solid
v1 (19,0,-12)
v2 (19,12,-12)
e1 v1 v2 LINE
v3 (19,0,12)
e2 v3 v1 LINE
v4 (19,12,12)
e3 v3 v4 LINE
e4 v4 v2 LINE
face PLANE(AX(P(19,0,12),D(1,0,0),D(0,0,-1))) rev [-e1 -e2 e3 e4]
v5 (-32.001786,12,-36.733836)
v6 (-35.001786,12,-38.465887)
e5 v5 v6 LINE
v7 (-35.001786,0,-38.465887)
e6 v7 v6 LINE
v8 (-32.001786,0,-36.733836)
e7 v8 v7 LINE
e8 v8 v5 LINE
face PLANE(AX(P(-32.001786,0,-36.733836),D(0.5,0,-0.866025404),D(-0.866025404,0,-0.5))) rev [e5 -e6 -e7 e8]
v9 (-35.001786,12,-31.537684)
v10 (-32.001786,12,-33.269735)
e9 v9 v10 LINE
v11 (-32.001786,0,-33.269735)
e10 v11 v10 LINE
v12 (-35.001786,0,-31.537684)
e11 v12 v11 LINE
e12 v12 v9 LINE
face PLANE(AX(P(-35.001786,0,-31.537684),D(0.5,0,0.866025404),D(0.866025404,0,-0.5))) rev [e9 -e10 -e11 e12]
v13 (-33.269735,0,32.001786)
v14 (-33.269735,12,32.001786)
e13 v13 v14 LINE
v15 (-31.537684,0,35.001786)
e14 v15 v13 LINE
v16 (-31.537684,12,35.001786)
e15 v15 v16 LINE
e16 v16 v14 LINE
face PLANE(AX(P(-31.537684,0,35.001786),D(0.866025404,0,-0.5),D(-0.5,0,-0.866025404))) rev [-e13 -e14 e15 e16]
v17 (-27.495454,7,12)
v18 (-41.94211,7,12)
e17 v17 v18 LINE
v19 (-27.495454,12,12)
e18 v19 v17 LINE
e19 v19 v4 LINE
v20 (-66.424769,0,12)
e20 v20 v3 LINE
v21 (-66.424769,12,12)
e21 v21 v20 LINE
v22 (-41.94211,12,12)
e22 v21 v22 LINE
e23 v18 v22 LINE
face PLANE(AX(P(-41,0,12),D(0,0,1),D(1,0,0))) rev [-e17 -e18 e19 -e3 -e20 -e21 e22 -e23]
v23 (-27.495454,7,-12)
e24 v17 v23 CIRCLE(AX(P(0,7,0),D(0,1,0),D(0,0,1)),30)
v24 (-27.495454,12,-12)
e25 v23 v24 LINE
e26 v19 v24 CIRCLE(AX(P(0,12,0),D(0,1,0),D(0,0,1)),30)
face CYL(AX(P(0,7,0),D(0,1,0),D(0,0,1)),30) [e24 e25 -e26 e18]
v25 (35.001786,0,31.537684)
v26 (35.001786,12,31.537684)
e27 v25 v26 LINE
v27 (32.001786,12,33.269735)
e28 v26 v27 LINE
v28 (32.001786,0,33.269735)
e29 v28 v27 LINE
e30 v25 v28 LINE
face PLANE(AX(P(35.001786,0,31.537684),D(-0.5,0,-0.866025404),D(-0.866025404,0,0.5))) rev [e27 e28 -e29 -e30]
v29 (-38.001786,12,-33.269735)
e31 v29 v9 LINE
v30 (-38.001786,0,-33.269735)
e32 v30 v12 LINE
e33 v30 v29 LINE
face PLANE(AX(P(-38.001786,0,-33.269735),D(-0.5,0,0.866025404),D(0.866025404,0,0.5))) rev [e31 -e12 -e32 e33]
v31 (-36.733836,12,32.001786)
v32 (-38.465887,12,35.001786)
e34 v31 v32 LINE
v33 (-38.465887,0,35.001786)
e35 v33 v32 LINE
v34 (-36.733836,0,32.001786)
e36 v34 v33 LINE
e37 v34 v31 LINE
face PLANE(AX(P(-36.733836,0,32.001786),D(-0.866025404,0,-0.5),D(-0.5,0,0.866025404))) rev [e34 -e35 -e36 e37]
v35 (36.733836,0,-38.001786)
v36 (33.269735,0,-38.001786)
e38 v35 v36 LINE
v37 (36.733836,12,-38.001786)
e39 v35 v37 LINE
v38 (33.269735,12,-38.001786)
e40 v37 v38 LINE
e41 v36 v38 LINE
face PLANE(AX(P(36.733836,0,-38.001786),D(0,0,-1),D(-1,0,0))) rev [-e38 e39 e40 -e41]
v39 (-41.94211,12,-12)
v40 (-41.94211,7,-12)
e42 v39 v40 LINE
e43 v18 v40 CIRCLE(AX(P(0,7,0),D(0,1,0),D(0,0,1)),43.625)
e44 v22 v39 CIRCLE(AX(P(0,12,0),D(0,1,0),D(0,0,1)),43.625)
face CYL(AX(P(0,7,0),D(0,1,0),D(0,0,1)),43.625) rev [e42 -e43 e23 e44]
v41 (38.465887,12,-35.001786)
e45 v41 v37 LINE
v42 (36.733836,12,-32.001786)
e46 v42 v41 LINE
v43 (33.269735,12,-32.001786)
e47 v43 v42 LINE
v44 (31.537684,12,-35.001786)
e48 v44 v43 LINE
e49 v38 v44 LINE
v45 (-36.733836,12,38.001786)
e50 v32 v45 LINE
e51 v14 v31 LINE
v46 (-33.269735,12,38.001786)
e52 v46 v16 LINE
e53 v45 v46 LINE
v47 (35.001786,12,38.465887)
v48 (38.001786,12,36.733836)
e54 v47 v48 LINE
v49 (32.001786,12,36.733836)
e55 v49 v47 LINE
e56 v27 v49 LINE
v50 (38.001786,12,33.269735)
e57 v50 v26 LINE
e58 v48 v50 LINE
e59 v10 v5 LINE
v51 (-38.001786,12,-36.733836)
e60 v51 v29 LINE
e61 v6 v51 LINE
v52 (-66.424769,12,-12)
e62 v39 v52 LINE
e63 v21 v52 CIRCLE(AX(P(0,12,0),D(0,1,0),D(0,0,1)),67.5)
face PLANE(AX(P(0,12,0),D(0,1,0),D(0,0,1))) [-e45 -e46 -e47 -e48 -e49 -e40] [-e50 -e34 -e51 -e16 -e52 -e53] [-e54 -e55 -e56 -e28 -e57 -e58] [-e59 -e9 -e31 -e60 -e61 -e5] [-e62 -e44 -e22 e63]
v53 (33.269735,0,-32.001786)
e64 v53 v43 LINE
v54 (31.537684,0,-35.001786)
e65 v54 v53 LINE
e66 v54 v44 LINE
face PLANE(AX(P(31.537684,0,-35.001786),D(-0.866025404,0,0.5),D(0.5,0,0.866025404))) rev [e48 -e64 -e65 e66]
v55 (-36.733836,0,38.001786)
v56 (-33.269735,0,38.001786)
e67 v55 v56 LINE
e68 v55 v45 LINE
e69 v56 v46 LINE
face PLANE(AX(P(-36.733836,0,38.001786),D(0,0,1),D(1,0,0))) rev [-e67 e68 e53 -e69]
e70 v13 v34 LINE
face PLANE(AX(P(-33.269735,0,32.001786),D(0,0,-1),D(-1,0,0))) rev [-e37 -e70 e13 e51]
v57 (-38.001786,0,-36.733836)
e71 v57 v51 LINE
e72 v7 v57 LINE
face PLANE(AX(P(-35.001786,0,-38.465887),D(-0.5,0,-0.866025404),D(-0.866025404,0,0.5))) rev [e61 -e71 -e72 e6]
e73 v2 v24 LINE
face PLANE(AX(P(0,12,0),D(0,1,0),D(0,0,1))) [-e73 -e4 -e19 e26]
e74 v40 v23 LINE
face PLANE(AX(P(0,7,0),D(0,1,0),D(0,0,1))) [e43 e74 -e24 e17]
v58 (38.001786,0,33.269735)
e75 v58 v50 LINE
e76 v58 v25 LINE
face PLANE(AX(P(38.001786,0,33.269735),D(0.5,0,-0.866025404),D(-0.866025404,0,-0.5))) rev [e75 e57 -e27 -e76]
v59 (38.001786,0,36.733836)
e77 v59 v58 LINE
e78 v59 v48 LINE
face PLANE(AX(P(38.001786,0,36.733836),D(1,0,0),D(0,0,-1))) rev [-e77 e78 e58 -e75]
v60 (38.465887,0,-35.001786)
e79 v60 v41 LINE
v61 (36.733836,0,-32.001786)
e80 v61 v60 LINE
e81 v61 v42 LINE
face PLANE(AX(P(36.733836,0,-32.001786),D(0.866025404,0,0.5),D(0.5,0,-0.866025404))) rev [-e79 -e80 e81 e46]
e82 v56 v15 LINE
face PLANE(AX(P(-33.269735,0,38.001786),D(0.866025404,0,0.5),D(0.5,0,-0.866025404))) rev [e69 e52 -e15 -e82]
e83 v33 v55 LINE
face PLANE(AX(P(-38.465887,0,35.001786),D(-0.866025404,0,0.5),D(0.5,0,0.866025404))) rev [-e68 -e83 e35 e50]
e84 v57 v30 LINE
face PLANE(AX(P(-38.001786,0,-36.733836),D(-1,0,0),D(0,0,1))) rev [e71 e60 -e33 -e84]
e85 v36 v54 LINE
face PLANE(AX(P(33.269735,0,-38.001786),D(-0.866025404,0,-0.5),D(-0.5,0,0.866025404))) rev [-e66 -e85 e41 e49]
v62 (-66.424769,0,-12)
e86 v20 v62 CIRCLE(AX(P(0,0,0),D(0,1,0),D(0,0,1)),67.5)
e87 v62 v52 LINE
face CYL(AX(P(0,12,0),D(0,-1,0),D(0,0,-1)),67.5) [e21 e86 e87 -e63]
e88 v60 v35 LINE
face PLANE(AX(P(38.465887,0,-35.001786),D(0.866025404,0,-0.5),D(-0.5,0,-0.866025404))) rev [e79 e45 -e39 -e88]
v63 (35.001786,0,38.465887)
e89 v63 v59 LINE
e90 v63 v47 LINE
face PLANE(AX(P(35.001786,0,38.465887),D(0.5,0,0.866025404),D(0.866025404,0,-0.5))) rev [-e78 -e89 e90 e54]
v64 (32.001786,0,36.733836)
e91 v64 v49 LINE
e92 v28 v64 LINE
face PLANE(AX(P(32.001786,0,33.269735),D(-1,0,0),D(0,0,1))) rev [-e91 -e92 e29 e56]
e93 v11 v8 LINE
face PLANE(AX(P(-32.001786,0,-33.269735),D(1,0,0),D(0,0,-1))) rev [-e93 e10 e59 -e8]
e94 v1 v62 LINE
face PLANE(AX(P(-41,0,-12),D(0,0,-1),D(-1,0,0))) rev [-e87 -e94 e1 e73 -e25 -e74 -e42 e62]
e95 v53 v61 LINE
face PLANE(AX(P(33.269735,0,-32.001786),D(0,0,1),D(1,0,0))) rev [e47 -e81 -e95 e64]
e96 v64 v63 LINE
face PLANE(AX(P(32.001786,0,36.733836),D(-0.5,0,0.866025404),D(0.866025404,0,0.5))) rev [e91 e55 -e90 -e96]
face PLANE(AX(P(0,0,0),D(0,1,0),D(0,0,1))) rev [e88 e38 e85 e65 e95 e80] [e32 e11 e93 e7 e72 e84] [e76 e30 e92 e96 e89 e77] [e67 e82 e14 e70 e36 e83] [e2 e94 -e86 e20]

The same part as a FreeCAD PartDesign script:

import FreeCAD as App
import Part
import Sketcher

V = App.Vector
Q = App.Units.Quantity


def add_polygon(sketch, points):
    """Adds a closed chain of lines whose ends are joined by coincident constraints."""
    first, n = sketch.GeometryCount, len(points)
    for a, b in zip(points, points[1:] + points[:1]):
        sketch.addGeometry(Part.LineSegment(App.Vector(*a, 0), App.Vector(*b, 0)), False)
    for i in range(n):
        sketch.addConstraint(Sketcher.Constraint("Coincident", first + i, 2, first + (i + 1) % n, 1))

doc = App.newDocument("Part")
body = doc.addObject("PartDesign::Body", "Body")

# Sketch on XZ plane
sketch1 = body.newObject("Sketcher::SketchObject", "Sketch")
sketch1.AttachmentSupport = (doc.getObject("XZ_Plane"), [""])
sketch1.MapMode = "FlatFace"
sketch1.addGeometry(Part.Circle(V(0, 0, 0), V(0, 0, 1), 68), False)
sketch1.addConstraint(Sketcher.Constraint("Coincident", 0, 3, -1, 1))
sketch1.addConstraint(Sketcher.Constraint("Diameter", 0, Q("135 mm")))
pad1 = body.newObject("PartDesign::Pad", "Pad")
pad1.Profile = sketch1
pad1.Length = 12
pad1.Reversed = True

# Sketch on XZ plane
sketch2 = body.newObject("Sketcher::SketchObject", "Sketch001")
sketch2.AttachmentSupport = (doc.getObject("XZ_Plane"), [""])
sketch2.MapMode = "FlatFace"
sketch2.AttachmentOffset = App.Placement(V(0, 0, -12), App.Rotation())
add_polygon(sketch2, [(-41, -12), (-41, 12), (19, 12), (19, -12)])  # lines 0-3
sketch2.addConstraint(Sketcher.Constraint("Vertical", 0))
sketch2.addConstraint(Sketcher.Constraint("Horizontal", 1))
sketch2.addConstraint(Sketcher.Constraint("Vertical", 2))
sketch2.addConstraint(Sketcher.Constraint("Horizontal", 3))
sketch2.addConstraint(Sketcher.Constraint("DistanceX", 1, 1, 1, 2, Q("60 mm")))
sketch2.addConstraint(Sketcher.Constraint("DistanceY", 0, 1, 0, 2, Q("24 mm")))
sketch2.addConstraint(Sketcher.Constraint("DistanceX", 0, 2, -1, 1, Q("41 mm")))
sketch2.addConstraint(Sketcher.Constraint("DistanceY", -1, 1, 0, 2, Q("12 mm")))
pocket1 = body.newObject("PartDesign::Pocket", "Pocket")
pocket1.Profile = sketch2
pocket1.Type = "ThroughAll"
pocket1.Reversed = True

# Sketch on XZ plane
sketch3 = body.newObject("Sketcher::SketchObject", "Sketch002")
sketch3.AttachmentSupport = (doc.getObject("XZ_Plane"), [""])
sketch3.MapMode = "FlatFace"
sketch3.AttachmentOffset = App.Placement(V(0, 0, -12), App.Rotation())
add_polygon(sketch3, [(35, 38.5), (38, 36.7), (38, 33.3), (35, 31.5), (32, 33.3), (32, 36.7)])  # lines 0-5
add_polygon(sketch3, [(38.5, -35), (36.7, -38), (33.3, -38), (31.5, -35), (33.3, -32), (36.7, -32)])  # lines 6-11
add_polygon(sketch3, [(-38.5, 35), (-36.7, 38), (-33.3, 38), (-31.5, 35), (-33.3, 32), (-36.7, 32)])  # lines 12-17
add_polygon(sketch3, [(-35, -38.5), (-38, -36.7), (-38, -33.3), (-35, -31.5), (-32, -33.3), (-32, -36.7)])  # lines 18-23
sketch3.addConstraint(Sketcher.Constraint("Vertical", 1))
sketch3.addConstraint(Sketcher.Constraint("Vertical", 4))
sketch3.addConstraint(Sketcher.Constraint("Horizontal", 7))
sketch3.addConstraint(Sketcher.Constraint("Horizontal", 10))
sketch3.addConstraint(Sketcher.Constraint("Horizontal", 13))
sketch3.addConstraint(Sketcher.Constraint("Horizontal", 16))
sketch3.addConstraint(Sketcher.Constraint("Vertical", 19))
sketch3.addConstraint(Sketcher.Constraint("Vertical", 22))
sketch3.addConstraint(Sketcher.Constraint("Symmetric", 6, 2, 12, 2, -1, 1))
sketch3.addConstraint(Sketcher.Constraint("Symmetric", 8, 2, 14, 2, -1, 1))
sketch3.addConstraint(Sketcher.Constraint("Symmetric", 9, 2, 15, 2, -1, 1))
sketch3.addConstraint(Sketcher.Constraint("Symmetric", 11, 2, 17, 2, -1, 1))
sketch3.addConstraint(Sketcher.Constraint("Symmetric", 0, 2, 18, 2, -1, 1))
sketch3.addConstraint(Sketcher.Constraint("Symmetric", 2, 2, 20, 2, -1, 1))
sketch3.addConstraint(Sketcher.Constraint("Symmetric", 3, 2, 21, 2, -1, 1))
sketch3.addConstraint(Sketcher.Constraint("Symmetric", 5, 2, 23, 2, -1, 1))
sketch3.addConstraint(Sketcher.Constraint("Parallel", 0, 3))
sketch3.addConstraint(Sketcher.Constraint("Parallel", 2, 5))
sketch3.addConstraint(Sketcher.Constraint("Perpendicular", 3, 6))
sketch3.addConstraint(Sketcher.Constraint("Perpendicular", 5, 8))
sketch3.addConstraint(Sketcher.Constraint("Parallel", 6, 9))
sketch3.addConstraint(Sketcher.Constraint("Parallel", 8, 11))
sketch3.addConstraint(Sketcher.Constraint("Parallel", 11, 14))
sketch3.addConstraint(Sketcher.Constraint("Parallel", 14, 17))
sketch3.addConstraint(Sketcher.Constraint("Perpendicular", 17, 20))
sketch3.addConstraint(Sketcher.Constraint("Parallel", 20, 23))
sketch3.addConstraint(Sketcher.Constraint("Horizontal", 1, 2, 3, 2))
sketch3.addConstraint(Sketcher.Constraint("Horizontal", 0, 2, 4, 2))
sketch3.addConstraint(Sketcher.Constraint("Horizontal", 8, 2, 11, 2))
sketch3.addConstraint(Sketcher.Constraint("Vertical", 2, 2, 5, 2))
sketch3.addConstraint(Sketcher.Constraint("Vertical", 7, 2, 9, 2))
sketch3.addConstraint(Sketcher.Constraint("Equal", 16, 1))
sketch3.addConstraint(Sketcher.Constraint("Equal", 5, 6))
sketch3.addConstraint(Sketcher.Constraint("Angle", 0, Q("-30 deg")))
sketch3.addConstraint(Sketcher.Constraint("DistanceX", 2, 2, 1, 2, Q("3 mm")))
sketch3.addConstraint(Sketcher.Constraint("DistanceX", 7, 2, 7, 1, Q("3.464102 mm")))
sketch3.addConstraint(Sketcher.Constraint("DistanceX", 8, 2, 2, 2, Q("3.464102 mm")))
sketch3.addConstraint(Sketcher.Constraint("DistanceY", 12, 2, 5, 2, Q("0.464102 mm")))
sketch3.addConstraint(Sketcher.Constraint("DistanceY", 6, 2, 2, 2, Q("69.53947 mm")))
sketch3.addConstraint(Sketcher.Constraint("DistanceX", 13, 2, 4, 2, Q("65.271521 mm")))
pocket2 = body.newObject("PartDesign::Pocket", "Pocket001")
pocket2.Profile = sketch3
pocket2.Type = "ThroughAll"
pocket2.Reversed = True

# Sketch on XZ plane
sketch4 = body.newObject("Sketcher::SketchObject", "Sketch003")
sketch4.AttachmentSupport = (doc.getObject("XZ_Plane"), [""])
sketch4.MapMode = "FlatFace"
sketch4.AttachmentOffset = App.Placement(V(0, 0, -12), App.Rotation())
sketch4.addGeometry(Part.Circle(V(0, 0, 0), V(0, 0, 1), 44), False)
sketch4.addGeometry(Part.Circle(V(0, 0, 0), V(0, 0, 1), 30), False)
sketch4.addConstraint(Sketcher.Constraint("Coincident", 0, 3, -1, 1))
sketch4.addConstraint(Sketcher.Constraint("Coincident", 1, 3, -1, 1))
sketch4.addConstraint(Sketcher.Constraint("Diameter", 1, Q("60 mm")))
sketch4.addConstraint(Sketcher.Constraint("Diameter", 0, Q("87.25 mm")))
pocket3 = body.newObject("PartDesign::Pocket", "Pocket002")
pocket3.Profile = sketch4
pocket3.Length = 5
pocket3.Reversed = True

# Sketch on XZ plane
sketch5 = body.newObject("Sketcher::SketchObject", "Sketch004")
sketch5.AttachmentSupport = (doc.getObject("XZ_Plane"), [""])
sketch5.MapMode = "FlatFace"
sketch5.AttachmentOffset = App.Placement(V(0, 0, -12), App.Rotation())
add_polygon(sketch5, [(-116, -12), (-116, 12), (-41, 12), (-41, -12)])  # lines 0-3
sketch5.addConstraint(Sketcher.Constraint("Vertical", 0))
sketch5.addConstraint(Sketcher.Constraint("Horizontal", 1))
sketch5.addConstraint(Sketcher.Constraint("Vertical", 2))
sketch5.addConstraint(Sketcher.Constraint("Horizontal", 3))
sketch5.addConstraint(Sketcher.Constraint("DistanceY", 0, 1, 0, 2, Q("24 mm")))
sketch5.addConstraint(Sketcher.Constraint("DistanceY", -1, 1, 0, 2, Q("12 mm")))
sketch5.addConstraint(Sketcher.Constraint("DistanceX", 1, 2, -1, 1, Q("41 mm")))
sketch5.addConstraint(Sketcher.Constraint("DistanceX", 1, 1, 1, 2, Q("75.06754 mm")))
pocket4 = body.newObject("PartDesign::Pocket", "Pocket003")
pocket4.Profile = sketch5
pocket4.Type = "ThroughAll"
pocket4.Reversed = True

doc.recompute()
